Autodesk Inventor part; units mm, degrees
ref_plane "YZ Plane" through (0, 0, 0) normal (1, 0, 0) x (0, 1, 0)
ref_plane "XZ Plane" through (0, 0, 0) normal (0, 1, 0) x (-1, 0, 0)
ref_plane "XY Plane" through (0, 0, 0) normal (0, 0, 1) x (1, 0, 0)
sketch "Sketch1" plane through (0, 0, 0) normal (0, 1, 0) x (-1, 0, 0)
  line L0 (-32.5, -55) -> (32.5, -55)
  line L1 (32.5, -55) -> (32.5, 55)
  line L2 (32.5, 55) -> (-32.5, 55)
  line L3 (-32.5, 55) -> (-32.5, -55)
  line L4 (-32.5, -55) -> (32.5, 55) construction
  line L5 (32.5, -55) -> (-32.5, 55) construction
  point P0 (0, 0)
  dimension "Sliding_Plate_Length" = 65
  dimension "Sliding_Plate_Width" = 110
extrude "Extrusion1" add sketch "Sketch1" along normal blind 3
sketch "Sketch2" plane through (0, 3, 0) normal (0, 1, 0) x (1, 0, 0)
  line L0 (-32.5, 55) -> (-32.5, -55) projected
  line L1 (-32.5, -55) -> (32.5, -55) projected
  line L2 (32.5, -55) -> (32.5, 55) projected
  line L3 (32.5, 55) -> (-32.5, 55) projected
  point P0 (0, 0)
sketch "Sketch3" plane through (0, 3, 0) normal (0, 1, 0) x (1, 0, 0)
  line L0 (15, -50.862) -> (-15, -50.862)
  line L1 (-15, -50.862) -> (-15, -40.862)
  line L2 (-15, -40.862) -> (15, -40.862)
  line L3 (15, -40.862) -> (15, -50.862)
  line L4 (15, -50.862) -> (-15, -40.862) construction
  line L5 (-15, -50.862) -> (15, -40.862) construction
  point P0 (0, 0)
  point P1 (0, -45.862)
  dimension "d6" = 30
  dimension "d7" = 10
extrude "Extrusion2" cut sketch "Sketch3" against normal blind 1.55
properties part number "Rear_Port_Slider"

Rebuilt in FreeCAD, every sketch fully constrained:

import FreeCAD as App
import Part
import Sketcher
from FreeCAD import Vector


def add_polygon(sketch, points):
    """Adds a closed chain of lines whose ends are joined by coincident constraints."""
    first, n = sketch.GeometryCount, len(points)
    for a, b in zip(points, points[1:] + points[:1]):
        sketch.addGeometry(Part.LineSegment(App.Vector(*a, 0), App.Vector(*b, 0)), False)
    for i in range(n):
        sketch.addConstraint(Sketcher.Constraint("Coincident", first + i, 2, first + (i + 1) % n, 1))

doc = App.newDocument("Part")
body = doc.addObject("PartDesign::Body", "Body")

# Sketch on XZ plane
sketch1 = doc.addObject("Sketcher::SketchObject", "Sketch")
body.addObject(sketch1)
sketch1.AttachmentSupport = (doc.XZ_Plane, [""])
sketch1.MapMode = "FlatFace"
add_polygon(sketch1, [(32, 55), (32, -55), (-32, -55), (-32, 55)])  # lines 0-3
sketch1.addConstraint(Sketcher.Constraint("Vertical", 0))
sketch1.addConstraint(Sketcher.Constraint("Horizontal", 1))
sketch1.addConstraint(Sketcher.Constraint("Vertical", 2))
sketch1.addConstraint(Sketcher.Constraint("Horizontal", 3))
sketch1.addConstraint(Sketcher.Constraint("Symmetric", 0, 2, 2, 2, -1, 1))
sketch1.addConstraint(Sketcher.Constraint("DistanceX", 1, 2, 1, 1, 65.0))
sketch1.addConstraint(Sketcher.Constraint("DistanceY", 0, 2, 0, 1, 110.0))
pad1 = doc.addObject("PartDesign::Pad", "Pad")
body.addObject(pad1)
pad1.Profile = sketch1
pad1.Length = 3
pad1.Reversed = True

# Sketch on XZ plane
sketch2 = doc.addObject("Sketcher::SketchObject", "Sketch001")
body.addObject(sketch2)
sketch2.AttachmentSupport = (doc.XZ_Plane, [""])
sketch2.MapMode = "FlatFace"
sketch2.AttachmentOffset = App.Placement(Vector(0, 0, -3), App.Rotation())
add_polygon(sketch2, [(-15, 51), (15, 51), (15, 41), (-15, 41)])  # lines 0-3
sketch2.addConstraint(Sketcher.Constraint("Horizontal", 0))
sketch2.addConstraint(Sketcher.Constraint("Vertical", 1))
sketch2.addConstraint(Sketcher.Constraint("Horizontal", 2))
sketch2.addConstraint(Sketcher.Constraint("Vertical", 3))
sketch2.addConstraint(Sketcher.Constraint("DistanceX", 0, 1, 0, 2, 30.0))
sketch2.addConstraint(Sketcher.Constraint("DistanceY", 1, 2, 1, 1, 10.0))
sketch2.addConstraint(Sketcher.Constraint("DistanceX", -1, 1, 0, 2, 15.0))
sketch2.addConstraint(Sketcher.Constraint("DistanceY", -1, 1, 0, 2, 50.862))
pocket1 = doc.addObject("PartDesign::Pocket", "Pocket")
body.addObject(pocket1)
pocket1.Profile = sketch2
pocket1.Length = 1.55
pocket1.Reversed = True

doc.recompute()
